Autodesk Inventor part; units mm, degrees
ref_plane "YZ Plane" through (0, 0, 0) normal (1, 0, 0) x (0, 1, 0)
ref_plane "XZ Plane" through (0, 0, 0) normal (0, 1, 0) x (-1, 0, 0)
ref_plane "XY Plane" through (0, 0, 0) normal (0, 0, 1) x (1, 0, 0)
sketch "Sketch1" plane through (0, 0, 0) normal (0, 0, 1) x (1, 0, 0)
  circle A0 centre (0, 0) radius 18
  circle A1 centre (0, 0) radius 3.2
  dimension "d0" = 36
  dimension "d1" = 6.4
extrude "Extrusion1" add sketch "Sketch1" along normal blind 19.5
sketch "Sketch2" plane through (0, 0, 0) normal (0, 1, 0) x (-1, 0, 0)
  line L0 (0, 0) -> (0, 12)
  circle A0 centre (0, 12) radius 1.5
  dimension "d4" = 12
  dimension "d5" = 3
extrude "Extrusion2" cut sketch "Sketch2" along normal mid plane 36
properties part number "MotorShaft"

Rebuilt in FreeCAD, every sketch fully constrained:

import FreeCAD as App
import Part
import Sketcher

V = App.Vector

doc = App.newDocument("Part")
params = doc.addObject("Spreadsheet::Sheet", "Params")
for row, (alias, value) in enumerate([
    ("sketch1_diameter", "36 mm"),
    ("sketch1_diameter2", "6.4 mm"),
    ("pad1_length", "19.5 mm"),
    ("sketch2_diameter", "3 mm"),
    ("pocket1_length", "36 mm"),
], start=1):
    params.set(f"A{row}", alias)
    params.set(f"B{row}", "=" + value)
    params.setAlias(f"B{row}", alias)

body = doc.addObject("PartDesign::Body", "Body")

sketch1 = body.newObject("Sketcher::SketchObject", "Sketch")
sketch1.AttachmentSupport = (doc.getObject("XY_Plane"), [""])
sketch1.MapMode = "FlatFace"
sketch1.addGeometry([
    Part.Circle(V(0, 0, 0), V(0, 0, 1), 18),
    Part.Circle(V(0, 0, 0), V(0, 0, 1), 3.2),
], False)
sketch1.addConstraint([
    Sketcher.Constraint("Coincident", 0, 3, -1, 1),
    Sketcher.Constraint("Coincident", 1, 3, -1, 1),
    Sketcher.Constraint("Diameter", 0, 36.0),
    Sketcher.Constraint("Diameter", 1, 6.4),
])
sketch1.setExpression("Constraints[2]", "Params.sketch1_diameter")
sketch1.setExpression("Constraints[3]", "Params.sketch1_diameter2")
pad1 = body.newObject("PartDesign::Pad", "Pad")
pad1.Profile = sketch1
pad1.setExpression("Length", "Params.pad1_length")

sketch2 = body.newObject("Sketcher::SketchObject", "Sketch001")
sketch2.AttachmentSupport = (doc.getObject("XZ_Plane"), [""])
sketch2.MapMode = "FlatFace"
sketch2.addGeometry(Part.Circle(V(0, 12, 0), V(0, 0, 1), 1.5), False)
sketch2.addConstraint([
    Sketcher.Constraint("PointOnObject", 0, 3, -2),
    Sketcher.Constraint("Diameter", 0, 3.0),
    Sketcher.Constraint("DistanceY", -1, 1, 0, 3, 12.0),
])
sketch2.setExpression("Constraints[1]", "Params.sketch2_diameter")
pocket1 = body.newObject("PartDesign::Pocket", "Pocket")
pocket1.Profile = sketch2
pocket1.setExpression("Length", "Params.pocket1_length")
pocket1.Midplane = True

doc.recompute()
